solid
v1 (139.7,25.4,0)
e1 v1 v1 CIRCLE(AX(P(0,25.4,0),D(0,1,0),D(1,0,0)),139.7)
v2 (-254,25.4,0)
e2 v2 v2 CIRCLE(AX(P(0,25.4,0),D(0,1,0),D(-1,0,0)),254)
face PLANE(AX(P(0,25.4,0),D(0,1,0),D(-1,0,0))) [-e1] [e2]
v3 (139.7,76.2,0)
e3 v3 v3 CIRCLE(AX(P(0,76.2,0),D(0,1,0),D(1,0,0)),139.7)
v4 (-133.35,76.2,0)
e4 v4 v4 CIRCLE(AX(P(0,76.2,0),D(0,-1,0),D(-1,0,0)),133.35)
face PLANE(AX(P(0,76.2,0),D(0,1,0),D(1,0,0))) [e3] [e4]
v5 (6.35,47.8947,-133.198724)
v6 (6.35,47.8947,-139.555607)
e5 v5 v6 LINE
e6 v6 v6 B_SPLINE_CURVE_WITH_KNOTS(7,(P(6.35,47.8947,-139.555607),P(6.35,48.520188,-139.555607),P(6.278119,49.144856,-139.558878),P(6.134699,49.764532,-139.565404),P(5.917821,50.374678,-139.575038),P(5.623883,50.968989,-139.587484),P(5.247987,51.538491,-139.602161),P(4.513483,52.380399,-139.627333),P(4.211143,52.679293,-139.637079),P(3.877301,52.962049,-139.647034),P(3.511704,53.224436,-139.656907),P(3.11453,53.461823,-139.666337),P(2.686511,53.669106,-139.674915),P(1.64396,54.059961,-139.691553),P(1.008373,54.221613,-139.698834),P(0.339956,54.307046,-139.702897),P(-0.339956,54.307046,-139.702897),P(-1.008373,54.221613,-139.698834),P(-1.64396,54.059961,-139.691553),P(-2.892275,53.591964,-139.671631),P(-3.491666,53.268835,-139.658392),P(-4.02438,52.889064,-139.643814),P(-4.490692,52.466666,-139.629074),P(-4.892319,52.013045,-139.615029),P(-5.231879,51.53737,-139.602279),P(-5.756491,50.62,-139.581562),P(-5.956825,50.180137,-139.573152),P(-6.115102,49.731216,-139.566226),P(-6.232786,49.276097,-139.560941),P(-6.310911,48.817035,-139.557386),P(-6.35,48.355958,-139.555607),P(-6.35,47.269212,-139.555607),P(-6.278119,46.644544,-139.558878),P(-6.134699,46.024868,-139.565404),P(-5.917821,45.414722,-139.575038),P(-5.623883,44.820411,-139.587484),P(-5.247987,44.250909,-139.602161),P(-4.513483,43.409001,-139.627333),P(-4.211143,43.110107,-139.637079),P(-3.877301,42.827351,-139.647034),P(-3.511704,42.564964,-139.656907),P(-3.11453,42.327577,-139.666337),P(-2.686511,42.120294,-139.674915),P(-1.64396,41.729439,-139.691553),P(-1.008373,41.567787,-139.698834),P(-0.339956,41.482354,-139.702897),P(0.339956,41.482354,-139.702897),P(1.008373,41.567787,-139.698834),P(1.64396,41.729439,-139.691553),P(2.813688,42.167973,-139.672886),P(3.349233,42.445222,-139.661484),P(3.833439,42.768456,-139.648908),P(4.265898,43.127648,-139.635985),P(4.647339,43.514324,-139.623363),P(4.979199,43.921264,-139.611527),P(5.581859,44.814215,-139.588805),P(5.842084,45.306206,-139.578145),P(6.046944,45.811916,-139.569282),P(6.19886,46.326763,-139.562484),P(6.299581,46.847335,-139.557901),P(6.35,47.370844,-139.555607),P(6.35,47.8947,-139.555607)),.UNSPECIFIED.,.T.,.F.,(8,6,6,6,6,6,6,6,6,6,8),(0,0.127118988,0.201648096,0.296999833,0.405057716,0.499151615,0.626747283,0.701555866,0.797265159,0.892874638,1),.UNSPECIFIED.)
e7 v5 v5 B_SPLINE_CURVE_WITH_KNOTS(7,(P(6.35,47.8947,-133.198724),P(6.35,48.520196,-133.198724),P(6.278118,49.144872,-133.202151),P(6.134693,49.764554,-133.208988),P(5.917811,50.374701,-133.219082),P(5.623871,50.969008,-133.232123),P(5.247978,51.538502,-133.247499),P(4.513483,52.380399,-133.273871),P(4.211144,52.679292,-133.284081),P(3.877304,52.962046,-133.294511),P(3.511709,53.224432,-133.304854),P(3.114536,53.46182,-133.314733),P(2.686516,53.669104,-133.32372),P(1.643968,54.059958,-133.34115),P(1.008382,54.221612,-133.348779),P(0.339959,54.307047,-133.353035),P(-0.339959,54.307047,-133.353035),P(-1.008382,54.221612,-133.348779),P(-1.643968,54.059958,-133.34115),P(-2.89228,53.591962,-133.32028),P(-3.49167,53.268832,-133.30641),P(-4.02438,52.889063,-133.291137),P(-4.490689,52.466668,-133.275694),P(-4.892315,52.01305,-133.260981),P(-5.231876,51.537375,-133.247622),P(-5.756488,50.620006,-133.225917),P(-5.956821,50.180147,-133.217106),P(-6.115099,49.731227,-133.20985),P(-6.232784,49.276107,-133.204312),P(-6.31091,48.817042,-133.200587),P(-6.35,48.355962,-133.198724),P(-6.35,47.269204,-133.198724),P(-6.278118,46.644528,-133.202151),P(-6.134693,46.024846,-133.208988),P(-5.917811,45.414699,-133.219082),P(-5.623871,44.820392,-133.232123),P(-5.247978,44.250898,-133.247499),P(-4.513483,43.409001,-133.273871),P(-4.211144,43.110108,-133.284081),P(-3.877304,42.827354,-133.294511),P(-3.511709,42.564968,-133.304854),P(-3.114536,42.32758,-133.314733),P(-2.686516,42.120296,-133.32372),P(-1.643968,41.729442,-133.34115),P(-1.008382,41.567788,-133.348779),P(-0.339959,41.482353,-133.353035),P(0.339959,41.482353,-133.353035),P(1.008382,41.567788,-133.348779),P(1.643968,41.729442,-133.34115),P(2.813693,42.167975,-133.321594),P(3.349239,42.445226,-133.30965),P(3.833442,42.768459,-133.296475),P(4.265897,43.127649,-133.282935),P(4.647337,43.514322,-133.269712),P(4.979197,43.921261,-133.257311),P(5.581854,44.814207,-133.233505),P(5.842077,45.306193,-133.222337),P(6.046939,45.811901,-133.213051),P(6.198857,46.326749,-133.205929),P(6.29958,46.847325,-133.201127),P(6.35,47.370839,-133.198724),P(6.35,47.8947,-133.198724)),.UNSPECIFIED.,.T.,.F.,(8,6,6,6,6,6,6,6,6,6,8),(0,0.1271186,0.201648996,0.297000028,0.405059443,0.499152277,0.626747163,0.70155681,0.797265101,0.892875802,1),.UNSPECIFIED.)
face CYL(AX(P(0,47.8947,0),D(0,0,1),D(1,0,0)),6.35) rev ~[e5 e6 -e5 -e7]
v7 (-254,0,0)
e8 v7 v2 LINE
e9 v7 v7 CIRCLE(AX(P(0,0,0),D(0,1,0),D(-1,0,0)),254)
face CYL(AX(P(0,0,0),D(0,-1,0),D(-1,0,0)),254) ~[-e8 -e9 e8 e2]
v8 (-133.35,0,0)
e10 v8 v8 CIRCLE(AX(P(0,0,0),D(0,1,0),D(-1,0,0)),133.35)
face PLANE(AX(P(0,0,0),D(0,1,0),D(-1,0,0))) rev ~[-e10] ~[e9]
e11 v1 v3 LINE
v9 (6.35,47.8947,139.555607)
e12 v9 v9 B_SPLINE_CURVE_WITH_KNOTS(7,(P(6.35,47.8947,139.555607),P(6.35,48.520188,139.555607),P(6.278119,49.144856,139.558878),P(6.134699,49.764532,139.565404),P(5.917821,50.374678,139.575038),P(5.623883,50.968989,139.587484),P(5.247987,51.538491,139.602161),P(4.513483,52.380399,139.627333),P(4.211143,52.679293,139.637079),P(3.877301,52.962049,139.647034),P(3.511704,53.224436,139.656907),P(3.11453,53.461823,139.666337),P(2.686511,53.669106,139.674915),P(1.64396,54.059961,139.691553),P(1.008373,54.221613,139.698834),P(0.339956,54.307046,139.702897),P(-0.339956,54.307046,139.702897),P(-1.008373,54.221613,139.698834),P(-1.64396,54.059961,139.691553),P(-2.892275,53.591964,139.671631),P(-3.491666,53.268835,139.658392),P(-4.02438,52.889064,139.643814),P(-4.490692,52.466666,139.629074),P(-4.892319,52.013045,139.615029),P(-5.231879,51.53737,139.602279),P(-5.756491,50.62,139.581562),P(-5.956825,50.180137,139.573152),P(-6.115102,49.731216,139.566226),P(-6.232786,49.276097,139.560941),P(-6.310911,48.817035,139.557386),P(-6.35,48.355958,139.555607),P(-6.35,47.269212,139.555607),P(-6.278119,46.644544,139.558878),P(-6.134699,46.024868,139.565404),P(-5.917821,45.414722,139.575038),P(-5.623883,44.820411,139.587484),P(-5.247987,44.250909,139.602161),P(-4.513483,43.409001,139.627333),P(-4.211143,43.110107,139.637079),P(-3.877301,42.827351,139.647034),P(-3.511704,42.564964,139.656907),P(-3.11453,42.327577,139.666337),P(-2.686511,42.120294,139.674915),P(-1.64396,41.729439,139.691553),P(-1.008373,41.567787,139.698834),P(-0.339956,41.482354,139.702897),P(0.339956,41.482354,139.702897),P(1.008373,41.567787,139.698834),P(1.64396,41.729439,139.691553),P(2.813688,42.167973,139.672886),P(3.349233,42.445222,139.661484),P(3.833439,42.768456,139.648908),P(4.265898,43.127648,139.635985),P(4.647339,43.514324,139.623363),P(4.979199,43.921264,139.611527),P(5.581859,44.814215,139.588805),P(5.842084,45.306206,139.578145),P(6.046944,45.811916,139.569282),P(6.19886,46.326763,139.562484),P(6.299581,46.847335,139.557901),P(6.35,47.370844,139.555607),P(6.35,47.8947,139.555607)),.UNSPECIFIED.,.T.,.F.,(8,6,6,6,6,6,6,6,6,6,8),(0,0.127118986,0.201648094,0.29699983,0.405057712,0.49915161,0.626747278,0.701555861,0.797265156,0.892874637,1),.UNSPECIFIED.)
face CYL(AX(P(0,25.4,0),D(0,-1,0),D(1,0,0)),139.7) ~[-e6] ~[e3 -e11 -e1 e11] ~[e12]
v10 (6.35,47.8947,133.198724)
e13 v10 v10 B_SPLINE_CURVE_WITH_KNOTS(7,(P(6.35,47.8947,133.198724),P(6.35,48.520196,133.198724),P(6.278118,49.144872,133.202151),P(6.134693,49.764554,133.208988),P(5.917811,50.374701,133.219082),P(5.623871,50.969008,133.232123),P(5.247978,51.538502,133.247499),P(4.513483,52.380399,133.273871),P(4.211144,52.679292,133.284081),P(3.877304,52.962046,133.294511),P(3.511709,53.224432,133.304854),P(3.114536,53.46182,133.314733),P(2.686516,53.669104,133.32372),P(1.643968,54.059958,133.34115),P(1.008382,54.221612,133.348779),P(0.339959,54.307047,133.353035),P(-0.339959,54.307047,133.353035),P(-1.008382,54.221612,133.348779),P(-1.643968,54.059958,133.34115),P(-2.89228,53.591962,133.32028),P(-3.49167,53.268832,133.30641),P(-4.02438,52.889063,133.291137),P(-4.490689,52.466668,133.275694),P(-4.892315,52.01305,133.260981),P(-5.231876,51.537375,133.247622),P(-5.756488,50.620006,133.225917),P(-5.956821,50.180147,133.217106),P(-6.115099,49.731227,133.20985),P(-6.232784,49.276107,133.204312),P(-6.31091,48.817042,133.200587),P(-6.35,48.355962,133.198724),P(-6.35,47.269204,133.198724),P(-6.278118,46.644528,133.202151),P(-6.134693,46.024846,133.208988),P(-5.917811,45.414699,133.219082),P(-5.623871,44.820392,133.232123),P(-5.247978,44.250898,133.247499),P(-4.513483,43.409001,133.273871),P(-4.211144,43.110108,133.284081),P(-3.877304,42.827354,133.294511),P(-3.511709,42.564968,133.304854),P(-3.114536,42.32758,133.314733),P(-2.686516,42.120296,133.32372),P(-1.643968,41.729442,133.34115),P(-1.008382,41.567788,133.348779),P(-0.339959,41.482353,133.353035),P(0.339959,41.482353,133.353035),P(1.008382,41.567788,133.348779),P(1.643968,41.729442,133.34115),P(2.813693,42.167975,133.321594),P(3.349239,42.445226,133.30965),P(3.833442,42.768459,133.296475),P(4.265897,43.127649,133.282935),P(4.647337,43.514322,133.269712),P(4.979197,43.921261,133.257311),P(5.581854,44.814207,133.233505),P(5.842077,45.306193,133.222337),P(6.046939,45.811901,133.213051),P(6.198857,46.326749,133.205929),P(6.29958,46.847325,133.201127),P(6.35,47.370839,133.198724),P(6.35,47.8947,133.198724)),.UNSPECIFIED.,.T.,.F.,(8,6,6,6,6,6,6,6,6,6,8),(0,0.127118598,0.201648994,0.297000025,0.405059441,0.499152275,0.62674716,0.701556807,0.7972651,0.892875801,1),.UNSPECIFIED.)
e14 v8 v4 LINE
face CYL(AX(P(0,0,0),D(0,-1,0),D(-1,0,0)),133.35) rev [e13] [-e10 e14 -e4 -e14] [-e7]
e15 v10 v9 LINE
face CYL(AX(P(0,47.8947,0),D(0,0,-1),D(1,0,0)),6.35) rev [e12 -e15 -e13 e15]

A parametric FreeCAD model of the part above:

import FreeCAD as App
import Part
import Sketcher

V = App.Vector
Q = App.Units.Quantity

doc = App.newDocument("Part")
body = doc.addObject("PartDesign::Body", "Body")

sketch1 = body.newObject("Sketcher::SketchObject", "Sketch")
sketch1.AttachmentSupport = (doc.getObject("XZ_Plane"), [""])
sketch1.MapMode = "FlatFace"
sketch1.addGeometry(Part.Circle(V(0, 0, 0), V(0, 0, 1), 254), False)
sketch1.addConstraint(Sketcher.Constraint("Coincident", 0, 3, -1, 1))
sketch1.addConstraint(Sketcher.Constraint("Diameter", 0, Q("20 in")))
pad1 = body.newObject("PartDesign::Pad", "Pad")
pad1.Profile = sketch1
pad1.Length = Q("1 in")
pad1.Reversed = True

sketch2 = body.newObject("Sketcher::SketchObject", "Sketch001")
sketch2.AttachmentSupport = (doc.getObject("XZ_Plane"), [""])
sketch2.MapMode = "FlatFace"
sketch2.AttachmentOffset = App.Placement(V(0, 0, -1 * 25.4), App.Rotation())
sketch2.addGeometry(Part.Circle(V(0, 0, 0), V(0, 0, 1), 140), False)
sketch2.addConstraint(Sketcher.Constraint("Coincident", 0, 3, -1, 1))
sketch2.addConstraint(Sketcher.Constraint("Diameter", 0, Q("11 in")))
pad2 = body.newObject("PartDesign::Pad", "Pad001")
pad2.Profile = sketch2
pad2.Length = Q("2 in")
pad2.Reversed = True

sketch3 = body.newObject("Sketcher::SketchObject", "Sketch002")
sketch3.AttachmentSupport = (doc.getObject("XZ_Plane"), [""])
sketch3.MapMode = "FlatFace"
sketch3.addGeometry(Part.Circle(V(0, 0, 0), V(0, 0, 1), 133), False)
sketch3.addConstraint(Sketcher.Constraint("Coincident", 0, 3, -1, 1))
sketch3.addConstraint(Sketcher.Constraint("Diameter", 0, Q("10.5 in")))
pocket1 = body.newObject("PartDesign::Pocket", "Pocket")
pocket1.Profile = sketch3
pocket1.Type = "UpToFirst"

sketch4 = body.newObject("Sketcher::SketchObject", "Sketch003")
sketch4.AttachmentSupport = (doc.getObject("XY_Plane"), [""])
sketch4.MapMode = "FlatFace"
sketch4.addGeometry(Part.Circle(V(0, 51, 0), V(0, 0, 1), 6), False)
sketch4.addConstraint(Sketcher.Constraint("PointOnObject", 0, 3, -2))
sketch4.addConstraint(Sketcher.Constraint("Diameter", 0, Q("0.5 in")))
sketch4.addConstraint(Sketcher.Constraint("DistanceY", -1, 1, 0, 3, Q("2 in")))
pocket2 = body.newObject("PartDesign::Pocket", "Pocket001")
pocket2.Profile = sketch4
pocket2.Length = Q("9 in")
pocket2.Midplane = True

sketch5 = body.newObject("Sketcher::SketchObject", "Sketch004")
sketch5.AttachmentSupport = (doc.getObject("XY_Plane"), [""])
sketch5.MapMode = "FlatFace"
sketch5.addGeometry(Part.Circle(V(0, 48, 0), V(0, 0, 1), 6), False)
sketch5.addConstraint(Sketcher.Constraint("PointOnObject", 0, 3, -2))
sketch5.addConstraint(Sketcher.Constraint("Diameter", 0, Q("0.5 in")))
sketch5.addConstraint(Sketcher.Constraint("DistanceY", -1, 1, 0, 3, Q("47.8947 mm")))
pocket3 = body.newObject("PartDesign::Pocket", "Pocket002")
pocket3.Profile = sketch5
pocket3.Length = Q("15 in")
pocket3.Midplane = True

doc.recompute()
